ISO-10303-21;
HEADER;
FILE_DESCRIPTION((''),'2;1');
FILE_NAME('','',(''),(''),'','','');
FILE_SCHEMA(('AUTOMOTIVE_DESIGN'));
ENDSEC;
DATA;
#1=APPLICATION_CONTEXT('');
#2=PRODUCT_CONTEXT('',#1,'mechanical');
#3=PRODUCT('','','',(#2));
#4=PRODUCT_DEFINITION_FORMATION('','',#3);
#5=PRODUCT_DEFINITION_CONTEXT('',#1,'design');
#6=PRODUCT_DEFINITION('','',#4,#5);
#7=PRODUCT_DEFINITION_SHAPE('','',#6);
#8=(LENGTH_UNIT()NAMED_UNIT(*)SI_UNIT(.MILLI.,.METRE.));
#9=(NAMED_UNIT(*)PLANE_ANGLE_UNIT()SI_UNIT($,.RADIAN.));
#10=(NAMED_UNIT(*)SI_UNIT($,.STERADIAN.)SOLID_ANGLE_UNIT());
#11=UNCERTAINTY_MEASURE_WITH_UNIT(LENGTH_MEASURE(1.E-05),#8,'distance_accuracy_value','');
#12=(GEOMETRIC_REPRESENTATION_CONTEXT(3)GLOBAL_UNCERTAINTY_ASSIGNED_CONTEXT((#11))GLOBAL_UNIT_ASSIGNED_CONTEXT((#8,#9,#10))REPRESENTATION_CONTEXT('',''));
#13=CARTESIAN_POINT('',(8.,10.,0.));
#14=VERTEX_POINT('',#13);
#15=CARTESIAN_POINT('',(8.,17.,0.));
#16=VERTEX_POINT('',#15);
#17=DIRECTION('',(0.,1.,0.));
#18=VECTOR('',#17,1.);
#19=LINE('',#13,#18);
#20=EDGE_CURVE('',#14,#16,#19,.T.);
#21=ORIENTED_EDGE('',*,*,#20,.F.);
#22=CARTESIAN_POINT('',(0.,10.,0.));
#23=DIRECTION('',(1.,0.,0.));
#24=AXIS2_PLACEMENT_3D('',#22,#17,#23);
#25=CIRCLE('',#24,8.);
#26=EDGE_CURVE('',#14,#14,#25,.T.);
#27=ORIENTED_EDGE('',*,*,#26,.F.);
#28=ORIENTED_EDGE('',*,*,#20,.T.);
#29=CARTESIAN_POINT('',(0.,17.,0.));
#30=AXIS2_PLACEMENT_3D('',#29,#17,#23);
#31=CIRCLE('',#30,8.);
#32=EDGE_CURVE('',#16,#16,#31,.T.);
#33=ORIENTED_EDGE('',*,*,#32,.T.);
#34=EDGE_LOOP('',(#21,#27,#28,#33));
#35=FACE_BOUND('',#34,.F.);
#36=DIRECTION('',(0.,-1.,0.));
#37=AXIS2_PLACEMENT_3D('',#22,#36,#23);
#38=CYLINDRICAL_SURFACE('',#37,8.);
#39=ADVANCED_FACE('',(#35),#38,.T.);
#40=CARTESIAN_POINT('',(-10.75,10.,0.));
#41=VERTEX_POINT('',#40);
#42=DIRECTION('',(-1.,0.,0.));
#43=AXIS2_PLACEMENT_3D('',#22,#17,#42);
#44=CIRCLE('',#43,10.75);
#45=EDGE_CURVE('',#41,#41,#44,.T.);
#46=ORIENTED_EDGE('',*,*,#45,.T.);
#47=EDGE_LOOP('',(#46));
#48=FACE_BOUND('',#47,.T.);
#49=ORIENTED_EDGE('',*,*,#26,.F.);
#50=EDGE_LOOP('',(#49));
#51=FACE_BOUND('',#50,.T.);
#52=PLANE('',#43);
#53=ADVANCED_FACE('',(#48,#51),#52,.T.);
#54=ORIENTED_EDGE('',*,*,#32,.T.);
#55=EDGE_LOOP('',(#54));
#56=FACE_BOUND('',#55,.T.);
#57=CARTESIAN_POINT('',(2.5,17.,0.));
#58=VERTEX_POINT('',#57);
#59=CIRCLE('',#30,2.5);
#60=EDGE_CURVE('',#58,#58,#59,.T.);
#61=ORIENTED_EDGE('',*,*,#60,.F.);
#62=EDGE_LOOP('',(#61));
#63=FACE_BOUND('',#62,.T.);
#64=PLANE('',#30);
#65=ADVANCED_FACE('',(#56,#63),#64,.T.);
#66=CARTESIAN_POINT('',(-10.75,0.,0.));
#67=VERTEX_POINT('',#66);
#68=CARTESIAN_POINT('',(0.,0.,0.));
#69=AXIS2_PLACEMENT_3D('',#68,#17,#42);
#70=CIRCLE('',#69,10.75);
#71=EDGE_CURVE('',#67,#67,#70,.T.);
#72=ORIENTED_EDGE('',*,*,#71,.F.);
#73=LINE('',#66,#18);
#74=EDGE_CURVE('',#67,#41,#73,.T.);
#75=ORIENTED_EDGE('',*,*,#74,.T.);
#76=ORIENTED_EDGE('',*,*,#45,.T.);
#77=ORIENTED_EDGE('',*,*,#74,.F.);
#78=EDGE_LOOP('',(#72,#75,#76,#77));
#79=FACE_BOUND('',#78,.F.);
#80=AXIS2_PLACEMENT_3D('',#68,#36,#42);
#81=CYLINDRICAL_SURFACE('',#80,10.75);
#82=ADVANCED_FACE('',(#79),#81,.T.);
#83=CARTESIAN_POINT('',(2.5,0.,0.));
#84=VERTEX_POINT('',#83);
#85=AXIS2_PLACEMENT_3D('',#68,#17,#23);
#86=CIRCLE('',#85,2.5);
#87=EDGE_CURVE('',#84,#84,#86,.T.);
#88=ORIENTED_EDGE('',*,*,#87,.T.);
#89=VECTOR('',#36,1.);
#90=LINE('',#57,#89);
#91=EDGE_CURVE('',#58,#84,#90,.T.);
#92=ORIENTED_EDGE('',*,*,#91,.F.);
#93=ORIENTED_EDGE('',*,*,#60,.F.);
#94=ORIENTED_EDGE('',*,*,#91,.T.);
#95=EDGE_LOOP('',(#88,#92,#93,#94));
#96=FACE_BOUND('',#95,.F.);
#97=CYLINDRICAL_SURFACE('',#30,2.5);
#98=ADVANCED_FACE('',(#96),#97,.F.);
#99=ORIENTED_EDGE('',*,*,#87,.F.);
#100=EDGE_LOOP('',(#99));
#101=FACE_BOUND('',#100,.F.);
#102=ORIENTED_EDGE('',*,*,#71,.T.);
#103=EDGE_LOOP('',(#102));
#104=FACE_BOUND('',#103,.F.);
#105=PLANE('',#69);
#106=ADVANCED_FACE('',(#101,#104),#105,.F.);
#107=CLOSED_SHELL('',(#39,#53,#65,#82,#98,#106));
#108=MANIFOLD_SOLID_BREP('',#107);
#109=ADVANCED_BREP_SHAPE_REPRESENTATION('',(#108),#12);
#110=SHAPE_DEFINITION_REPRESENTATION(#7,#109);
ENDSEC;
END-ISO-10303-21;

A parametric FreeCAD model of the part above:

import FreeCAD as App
import Part
import Sketcher
Q = App.Units.Quantity

doc = App.newDocument("Part")
params = doc.addObject("Spreadsheet::Sheet", "Params")
for row, (alias, value) in enumerate([
    ("sketch1_diameter", "21.5 mm"),
    ("pad1_length", "10 mm"),
    ("sketch2_diameter", "16 mm"),
    ("pad2_length", "7 mm"),
    ("sketch3_diameter", "5 mm"),
], start=1):
    params.set(f"A{row}", alias)
    params.set(f"B{row}", "=" + value)
    params.setAlias(f"B{row}", alias)

body = doc.addObject("PartDesign::Body", "Body")

sketch1 = doc.addObject("Sketcher::SketchObject", "Sketch")
body.addObject(sketch1)
sketch1.AttachmentSupport = (doc.XZ_Plane, [""])
sketch1.MapMode = "FlatFace"
sketch1.addGeometry(Part.Circle(App.Vector(0, 0, 0), App.Vector(0, 0, 1), 11), False)
sketch1.addConstraint(Sketcher.Constraint("Coincident", 0, 3, -1, 1))
sketch1.addConstraint(Sketcher.Constraint("Diameter", 0, Q("21.5 mm")))
sketch1.setExpression("Constraints[1]", "Params.sketch1_diameter")
pad1 = doc.addObject("PartDesign::Pad", "Pad")
body.addObject(pad1)
pad1.Profile = sketch1
pad1.setExpression("Length", "Params.pad1_length")
pad1.Reversed = True

sketch2 = doc.addObject("Sketcher::SketchObject", "Sketch001")
body.addObject(sketch2)
sketch2.AttachmentSupport = (doc.XZ_Plane, [""])
sketch2.MapMode = "FlatFace"
sketch2.AttachmentOffset = App.Placement(App.Vector(0, 0, -10), App.Rotation())
sketch2.addGeometry(Part.Circle(App.Vector(0, 0, 0), App.Vector(0, 0, 1), 8), False)
sketch2.addConstraint(Sketcher.Constraint("Coincident", 0, 3, -1, 1))
sketch2.addConstraint(Sketcher.Constraint("Diameter", 0, Q("16 mm")))
sketch2.setExpression("Constraints[1]", "Params.sketch2_diameter")
pad2 = doc.addObject("PartDesign::Pad", "Pad001")
body.addObject(pad2)
pad2.Profile = sketch2
pad2.setExpression("Length", "Params.pad2_length")
pad2.Reversed = True

sketch3 = doc.addObject("Sketcher::SketchObject", "Sketch002")
body.addObject(sketch3)
sketch3.AttachmentSupport = (doc.XZ_Plane, [""])
sketch3.MapMode = "FlatFace"
sketch3.AttachmentOffset = App.Placement(App.Vector(0, 0, -17), App.Rotation())
sketch3.addGeometry(Part.Circle(App.Vector(0, 0, 0), App.Vector(0, 0, 1), 2.5), False)
sketch3.addConstraint(Sketcher.Constraint("Coincident", 0, 3, -1, 1))
sketch3.addConstraint(Sketcher.Constraint("Diameter", 0, Q("5 mm")))
sketch3.setExpression("Constraints[1]", "Params.sketch3_diameter")
pocket1 = doc.addObject("PartDesign::Pocket", "Pocket")
body.addObject(pocket1)
pocket1.Profile = sketch3
pocket1.Type = "ThroughAll"
pocket1.Reversed = True

doc.recompute()
